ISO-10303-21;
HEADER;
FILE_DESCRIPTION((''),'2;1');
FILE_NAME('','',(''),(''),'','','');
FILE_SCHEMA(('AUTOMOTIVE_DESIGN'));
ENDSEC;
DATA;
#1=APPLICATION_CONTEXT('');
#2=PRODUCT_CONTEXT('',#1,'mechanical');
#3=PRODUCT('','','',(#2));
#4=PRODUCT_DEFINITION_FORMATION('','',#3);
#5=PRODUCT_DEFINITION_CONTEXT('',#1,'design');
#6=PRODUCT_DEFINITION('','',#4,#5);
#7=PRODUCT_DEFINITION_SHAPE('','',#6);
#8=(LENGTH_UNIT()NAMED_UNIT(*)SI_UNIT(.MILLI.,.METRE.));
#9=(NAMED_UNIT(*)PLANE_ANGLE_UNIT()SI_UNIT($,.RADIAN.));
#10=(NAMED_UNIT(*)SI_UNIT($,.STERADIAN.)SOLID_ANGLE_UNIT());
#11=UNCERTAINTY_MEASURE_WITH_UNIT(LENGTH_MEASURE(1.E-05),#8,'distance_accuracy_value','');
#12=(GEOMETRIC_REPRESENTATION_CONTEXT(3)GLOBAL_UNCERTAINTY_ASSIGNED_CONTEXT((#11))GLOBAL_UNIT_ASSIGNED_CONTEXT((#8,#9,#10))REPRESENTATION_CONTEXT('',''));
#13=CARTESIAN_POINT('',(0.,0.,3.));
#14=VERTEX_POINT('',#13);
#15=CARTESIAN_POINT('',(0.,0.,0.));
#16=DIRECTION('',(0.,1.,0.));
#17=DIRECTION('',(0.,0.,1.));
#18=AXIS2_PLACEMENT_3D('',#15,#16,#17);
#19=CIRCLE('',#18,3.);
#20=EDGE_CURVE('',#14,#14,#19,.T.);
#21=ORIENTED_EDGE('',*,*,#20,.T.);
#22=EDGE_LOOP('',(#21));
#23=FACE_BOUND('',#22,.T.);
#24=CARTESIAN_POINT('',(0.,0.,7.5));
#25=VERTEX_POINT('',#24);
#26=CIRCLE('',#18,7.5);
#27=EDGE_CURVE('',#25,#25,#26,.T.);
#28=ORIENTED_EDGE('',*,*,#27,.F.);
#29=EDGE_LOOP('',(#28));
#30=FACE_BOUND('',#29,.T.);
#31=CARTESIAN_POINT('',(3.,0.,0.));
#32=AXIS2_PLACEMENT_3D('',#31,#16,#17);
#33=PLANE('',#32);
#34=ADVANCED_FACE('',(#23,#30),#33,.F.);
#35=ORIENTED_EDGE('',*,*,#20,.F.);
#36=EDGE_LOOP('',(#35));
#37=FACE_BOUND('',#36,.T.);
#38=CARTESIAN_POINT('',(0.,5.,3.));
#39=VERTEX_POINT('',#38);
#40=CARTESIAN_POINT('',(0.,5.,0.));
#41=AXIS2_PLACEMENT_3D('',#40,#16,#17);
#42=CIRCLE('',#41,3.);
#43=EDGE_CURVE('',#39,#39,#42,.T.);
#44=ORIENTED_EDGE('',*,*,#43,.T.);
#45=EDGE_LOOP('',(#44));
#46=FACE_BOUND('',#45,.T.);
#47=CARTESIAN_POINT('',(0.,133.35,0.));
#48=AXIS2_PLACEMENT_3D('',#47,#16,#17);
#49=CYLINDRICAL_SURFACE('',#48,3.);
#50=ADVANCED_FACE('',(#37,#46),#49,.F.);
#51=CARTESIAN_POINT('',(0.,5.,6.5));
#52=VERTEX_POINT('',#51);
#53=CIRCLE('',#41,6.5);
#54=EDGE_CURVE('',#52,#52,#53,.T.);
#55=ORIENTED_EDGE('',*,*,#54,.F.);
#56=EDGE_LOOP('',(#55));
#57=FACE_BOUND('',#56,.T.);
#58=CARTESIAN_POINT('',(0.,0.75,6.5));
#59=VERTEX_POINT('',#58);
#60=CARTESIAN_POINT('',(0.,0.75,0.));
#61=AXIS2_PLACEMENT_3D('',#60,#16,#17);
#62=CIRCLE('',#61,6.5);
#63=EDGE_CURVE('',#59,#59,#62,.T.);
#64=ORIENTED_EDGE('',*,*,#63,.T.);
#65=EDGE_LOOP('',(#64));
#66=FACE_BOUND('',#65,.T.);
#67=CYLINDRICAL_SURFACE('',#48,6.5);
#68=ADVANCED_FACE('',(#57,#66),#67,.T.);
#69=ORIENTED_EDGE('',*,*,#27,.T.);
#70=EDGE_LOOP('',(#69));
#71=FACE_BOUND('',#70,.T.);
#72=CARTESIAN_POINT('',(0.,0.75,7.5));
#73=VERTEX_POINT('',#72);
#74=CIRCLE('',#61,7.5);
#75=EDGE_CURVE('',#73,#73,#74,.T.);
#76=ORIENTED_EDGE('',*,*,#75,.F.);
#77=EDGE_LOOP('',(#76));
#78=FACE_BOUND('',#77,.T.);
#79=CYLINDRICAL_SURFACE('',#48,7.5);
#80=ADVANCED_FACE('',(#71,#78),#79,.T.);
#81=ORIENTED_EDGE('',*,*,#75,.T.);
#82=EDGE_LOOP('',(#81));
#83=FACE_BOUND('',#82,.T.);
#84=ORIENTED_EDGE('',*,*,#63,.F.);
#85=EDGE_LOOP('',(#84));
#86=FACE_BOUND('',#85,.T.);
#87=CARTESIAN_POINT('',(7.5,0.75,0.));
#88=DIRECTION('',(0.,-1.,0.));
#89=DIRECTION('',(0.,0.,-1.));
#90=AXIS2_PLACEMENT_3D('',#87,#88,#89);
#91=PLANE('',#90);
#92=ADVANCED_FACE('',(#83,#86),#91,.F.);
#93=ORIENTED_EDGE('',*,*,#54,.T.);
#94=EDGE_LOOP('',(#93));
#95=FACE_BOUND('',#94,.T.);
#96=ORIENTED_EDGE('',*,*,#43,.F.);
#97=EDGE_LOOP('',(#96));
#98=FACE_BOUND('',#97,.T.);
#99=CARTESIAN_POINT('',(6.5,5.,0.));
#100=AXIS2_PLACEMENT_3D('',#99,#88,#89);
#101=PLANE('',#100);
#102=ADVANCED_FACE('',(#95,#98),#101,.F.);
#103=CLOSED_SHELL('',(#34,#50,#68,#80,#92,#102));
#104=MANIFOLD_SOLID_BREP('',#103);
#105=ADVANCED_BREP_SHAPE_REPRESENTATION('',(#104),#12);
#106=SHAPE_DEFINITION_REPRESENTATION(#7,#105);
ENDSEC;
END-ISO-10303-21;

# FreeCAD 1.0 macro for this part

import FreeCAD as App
import Part
import Sketcher
from FreeCAD import Vector
Q = App.Units.Quantity

doc = App.newDocument("Part")
body = doc.addObject("PartDesign::Body", "Body")

# Sketch on XY plane
sketch1 = body.newObject("Sketcher::SketchObject", "Sketch")
sketch1.AttachmentSupport = (doc.getObject("XY_Plane"), [""])
sketch1.MapMode = "FlatFace"
sketch1.addGeometry(Part.LineSegment(Vector(3, 0, 0), Vector(7.5, 0, 0)), False)
sketch1.addGeometry(Part.LineSegment(Vector(7.5, 0, 0), Vector(7.5, 0.8, 0)), False)
sketch1.addGeometry(Part.LineSegment(Vector(7.5, 0.8, 0), Vector(6.5, 0.8, 0)), False)
sketch1.addGeometry(Part.LineSegment(Vector(6.5, 0.8, 0), Vector(6.5, 5, 0)), False)
sketch1.addGeometry(Part.LineSegment(Vector(6.5, 5, 0), Vector(3, 5, 0)), False)
sketch1.addGeometry(Part.LineSegment(Vector(3, 5, 0), Vector(3, 0, 0)), False)
sketch1.addConstraint(Sketcher.Constraint("Coincident", 0, 2, 1, 1))
sketch1.addConstraint(Sketcher.Constraint("Coincident", 1, 2, 2, 1))
sketch1.addConstraint(Sketcher.Constraint("Coincident", 2, 2, 3, 1))
sketch1.addConstraint(Sketcher.Constraint("Coincident", 3, 2, 4, 1))
sketch1.addConstraint(Sketcher.Constraint("Coincident", 4, 2, 5, 1))
sketch1.addConstraint(Sketcher.Constraint("Coincident", 5, 2, 0, 1))
sketch1.addConstraint(Sketcher.Constraint("Horizontal", 0))
sketch1.addConstraint(Sketcher.Constraint("Vertical", 1))
sketch1.addConstraint(Sketcher.Constraint("Horizontal", 2))
sketch1.addConstraint(Sketcher.Constraint("Vertical", 3))
sketch1.addConstraint(Sketcher.Constraint("Horizontal", 4))
sketch1.addConstraint(Sketcher.Constraint("Vertical", 5))
sketch1.addConstraint(Sketcher.Constraint("PointOnObject", 0, 2, -1))
sketch1.addConstraint(Sketcher.Constraint("DistanceX", 2, 2, 2, 1, Q("1 mm")))
sketch1.addConstraint(Sketcher.Constraint("DistanceY", 5, 2, 5, 1, Q("5 mm")))
sketch1.addConstraint(Sketcher.Constraint("DistanceX", 0, 1, 0, 2, Q("4.5 mm")))
sketch1.addConstraint(Sketcher.Constraint("DistanceX", -1, 1, 4, 2, Q("3 mm")))
sketch1.addConstraint(Sketcher.Constraint("DistanceY", 1, 1, 1, 2, Q("0.75 mm")))
revolution = body.newObject("PartDesign::Revolution", "Revolution")
revolution.Profile = sketch1
revolution.ReferenceAxis = (sketch1, ["V_Axis"])
revolution.Angle = 360

doc.recompute()
